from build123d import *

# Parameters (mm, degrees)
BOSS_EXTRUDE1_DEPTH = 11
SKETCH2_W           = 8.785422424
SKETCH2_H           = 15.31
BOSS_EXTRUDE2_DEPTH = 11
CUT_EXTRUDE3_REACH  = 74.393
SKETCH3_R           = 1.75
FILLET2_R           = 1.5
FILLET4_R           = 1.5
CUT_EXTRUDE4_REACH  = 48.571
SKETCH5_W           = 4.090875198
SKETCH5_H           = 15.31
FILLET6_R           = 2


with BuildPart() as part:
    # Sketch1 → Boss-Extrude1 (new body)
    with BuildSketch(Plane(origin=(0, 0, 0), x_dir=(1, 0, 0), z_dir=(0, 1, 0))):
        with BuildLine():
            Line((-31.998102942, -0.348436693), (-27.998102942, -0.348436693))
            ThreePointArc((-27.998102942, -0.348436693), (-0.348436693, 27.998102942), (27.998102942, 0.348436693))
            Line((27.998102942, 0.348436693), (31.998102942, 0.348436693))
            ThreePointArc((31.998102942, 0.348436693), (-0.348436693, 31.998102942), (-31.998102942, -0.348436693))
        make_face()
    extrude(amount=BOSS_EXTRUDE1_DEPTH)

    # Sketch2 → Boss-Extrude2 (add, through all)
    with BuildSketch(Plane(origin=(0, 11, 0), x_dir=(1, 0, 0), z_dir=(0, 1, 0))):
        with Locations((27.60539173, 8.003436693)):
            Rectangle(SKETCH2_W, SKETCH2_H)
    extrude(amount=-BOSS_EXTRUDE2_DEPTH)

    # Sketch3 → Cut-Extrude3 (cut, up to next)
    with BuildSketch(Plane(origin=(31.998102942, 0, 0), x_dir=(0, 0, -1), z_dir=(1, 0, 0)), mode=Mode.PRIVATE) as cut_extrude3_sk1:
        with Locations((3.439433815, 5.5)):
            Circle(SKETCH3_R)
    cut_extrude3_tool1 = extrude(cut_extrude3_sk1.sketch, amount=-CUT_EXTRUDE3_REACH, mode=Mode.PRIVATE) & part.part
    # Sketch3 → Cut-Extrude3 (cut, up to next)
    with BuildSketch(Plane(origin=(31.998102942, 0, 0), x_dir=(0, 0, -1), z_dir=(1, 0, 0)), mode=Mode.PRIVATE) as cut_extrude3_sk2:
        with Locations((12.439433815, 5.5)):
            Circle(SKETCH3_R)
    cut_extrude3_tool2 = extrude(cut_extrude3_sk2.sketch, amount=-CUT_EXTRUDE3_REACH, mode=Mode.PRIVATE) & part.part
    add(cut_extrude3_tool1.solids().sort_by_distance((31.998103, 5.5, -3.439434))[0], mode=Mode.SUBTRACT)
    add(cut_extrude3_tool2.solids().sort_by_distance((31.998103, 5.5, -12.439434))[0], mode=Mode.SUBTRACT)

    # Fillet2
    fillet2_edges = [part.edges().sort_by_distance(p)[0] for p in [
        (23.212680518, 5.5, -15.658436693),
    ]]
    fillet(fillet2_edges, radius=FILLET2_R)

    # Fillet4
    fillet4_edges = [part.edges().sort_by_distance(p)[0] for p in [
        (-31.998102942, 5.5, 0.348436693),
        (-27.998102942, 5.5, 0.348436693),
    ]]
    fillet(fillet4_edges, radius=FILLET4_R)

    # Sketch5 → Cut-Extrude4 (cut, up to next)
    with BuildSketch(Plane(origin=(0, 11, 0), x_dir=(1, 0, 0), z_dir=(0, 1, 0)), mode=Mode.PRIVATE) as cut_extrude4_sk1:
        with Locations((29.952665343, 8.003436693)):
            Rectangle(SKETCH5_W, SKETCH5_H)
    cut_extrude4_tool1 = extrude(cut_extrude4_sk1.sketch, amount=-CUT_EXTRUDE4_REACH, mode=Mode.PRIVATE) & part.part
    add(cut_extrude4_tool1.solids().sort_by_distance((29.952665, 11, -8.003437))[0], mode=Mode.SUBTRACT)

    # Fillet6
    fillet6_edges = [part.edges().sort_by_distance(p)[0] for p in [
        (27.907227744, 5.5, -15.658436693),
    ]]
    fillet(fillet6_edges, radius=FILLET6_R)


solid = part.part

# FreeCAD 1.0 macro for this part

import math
import FreeCAD as App
import Part
import Sketcher


def edges_at(feature, points):
    """Names of the edges that pass closest to the given points."""
    edges = feature.Shape.Edges
    near = lambda p: min(range(len(edges)), key=lambda i: edges[i].distToShape(Part.Vertex(*p))[0])
    return sorted({f"Edge{near(p) + 1}" for p in points})


def add_polygon(sketch, points):
    """Adds a closed chain of lines whose ends are joined by coincident constraints."""
    first, n = sketch.GeometryCount, len(points)
    for a, b in zip(points, points[1:] + points[:1]):
        sketch.addGeometry(Part.LineSegment(App.Vector(*a, 0), App.Vector(*b, 0)), False)
    for i in range(n):
        sketch.addConstraint(Sketcher.Constraint("Coincident", first + i, 2, first + (i + 1) % n, 1))

doc = App.newDocument("Part")
params = doc.addObject("Spreadsheet::Sheet", "Params")
for row, (alias, value) in enumerate([
    ("sketch1_radius", "32 mm"),
    ("sketch1_width", "4 mm"),
    ("pad1_length", "11 mm"),
    ("sketch2_height", "15.31 mm"),
    ("sketch3_diameter", "3.5 mm"),
    ("sketch4_diameter", "3.5 mm"),
    ("fillet_radius", "1.5 mm"),
    ("fillet2_radius", "1.5 mm"),
    ("sketch5_height", "15.31 mm"),
    ("fillet3_radius", "2 mm"),
], start=1):
    params.set(f"A{row}", alias)
    params.set(f"B{row}", "=" + value)
    params.setAlias(f"B{row}", alias)

body = doc.addObject("PartDesign::Body", "Body")

sketch1 = body.newObject("Sketcher::SketchObject", "Sketch")
sketch1.AttachmentSupport = (doc.getObject("XZ_Plane"), [""])
sketch1.MapMode = "FlatFace"
sketch1.addGeometry([
    Part.LineSegment(App.Vector(-32, 0.3, 0), App.Vector(-28, 0.3, 0)),
    Part.ArcOfCircle(Part.Circle(App.Vector(0, 0, 0), App.Vector(0, 0, 1), 28), math.radians(179), math.radians(359)),
    Part.LineSegment(App.Vector(28, -0.3, 0), App.Vector(32, -0.3, 0)),
    Part.ArcOfCircle(Part.Circle(App.Vector(0, 0, 0), App.Vector(0, 0, 1), 32), math.radians(179), math.radians(359)),
], False)
sketch1.addConstraint([
    Sketcher.Constraint("Coincident", 0, 2, 1, 1),
    Sketcher.Constraint("Coincident", 1, 2, 2, 1),
    Sketcher.Constraint("Coincident", 2, 2, 3, 2),
    Sketcher.Constraint("Coincident", 3, 1, 0, 1),
    Sketcher.Constraint("Horizontal", 0),
    Sketcher.Constraint("Horizontal", 2),
    Sketcher.Constraint("Coincident", 1, 3, -1, 1),
    Sketcher.Constraint("Coincident", 3, 3, -1, 1),
    Sketcher.Constraint("Radius", 3, 32.0),
    Sketcher.Constraint("DistanceX", 0, 1, 0, 2, 4.0),
    Sketcher.Constraint("DistanceX", 0, 2, -1, 1, 27.998103),
    Sketcher.Constraint("DistanceX", -1, 1, 1, 2, 27.998103),
])
sketch1.setExpression("Constraints[8]", "Params.sketch1_radius")
sketch1.setExpression("Constraints[9]", "Params.sketch1_width")
pad1 = body.newObject("PartDesign::Pad", "Pad")
pad1.Profile = sketch1
pad1.setExpression("Length", "Params.pad1_length")
pad1.Reversed = True

sketch2 = body.newObject("Sketcher::SketchObject", "Sketch001")
sketch2.AttachmentSupport = (doc.getObject("XZ_Plane"), [""])
sketch2.MapMode = "FlatFace"
sketch2.AttachmentOffset = App.Placement(App.Vector(0, 0, -11), App.Rotation())
add_polygon(sketch2, [(23, -16), (23, 0), (32, 0), (32, -16)])
sketch2.addConstraint([
    Sketcher.Constraint("Vertical", 0),
    Sketcher.Constraint("Horizontal", 1),
    Sketcher.Constraint("Vertical", 2),
    Sketcher.Constraint("Horizontal", 3),
    Sketcher.Constraint("DistanceY", 0, 1, 0, 2, 15.31),
    Sketcher.Constraint("DistanceX", 1, 1, 1, 2, 8.785422),
    Sketcher.Constraint("DistanceX", -1, 1, 0, 2, 23.212681),
    Sketcher.Constraint("DistanceY", 0, 2, -1, 1, 0.348437),
])
sketch2.setExpression("Constraints[8]", "Params.sketch2_height")
pad2 = body.newObject("PartDesign::Pad", "Pad001")
pad2.Profile = sketch2
pad2.Type = "UpToLast"

sketch3 = body.newObject("Sketcher::SketchObject", "Sketch002")
sketch3.AttachmentSupport = (doc.getObject("YZ_Plane"), [""])
sketch3.MapMode = "FlatFace"
sketch3.AttachmentOffset = App.Placement(App.Vector(0, 0, 31.998103), App.Rotation())
sketch3.addGeometry(Part.Circle(App.Vector(5.5, -3.4, 0), App.Vector(0, 0, 1), 1.8), False)
sketch3.addConstraint([
    Sketcher.Constraint("Diameter", 0, 3.5),
    Sketcher.Constraint("DistanceX", -1, 1, 0, 3, 5.5),
    Sketcher.Constraint("DistanceY", 0, 3, -1, 1, 3.439434),
])
sketch3.setExpression("Constraints[0]", "Params.sketch3_diameter")
pocket1 = body.newObject("PartDesign::Pocket", "Pocket")
pocket1.Profile = sketch3
pocket1.Type = "UpToFirst"

sketch4 = body.newObject("Sketcher::SketchObject", "Sketch003")
sketch4.AttachmentSupport = (doc.getObject("YZ_Plane"), [""])
sketch4.MapMode = "FlatFace"
sketch4.AttachmentOffset = App.Placement(App.Vector(0, 0, 31.998103), App.Rotation())
sketch4.addGeometry(Part.Circle(App.Vector(5.5, -12.4, 0), App.Vector(0, 0, 1), 1.8), False)
sketch4.addConstraint([
    Sketcher.Constraint("Diameter", 0, 3.5),
    Sketcher.Constraint("DistanceX", -1, 1, 0, 3, 5.5),
    Sketcher.Constraint("DistanceY", 0, 3, -1, 1, 12.439434),
])
sketch4.setExpression("Constraints[0]", "Params.sketch4_diameter")
pocket2 = body.newObject("PartDesign::Pocket", "Pocket001")
pocket2.Profile = sketch4
pocket2.Type = "UpToFirst"
doc.recompute()

fillet = body.newObject("PartDesign::Fillet", "Fillet")
fillet.Base = (pocket2, edges_at(pocket2, [(23.213, 5.5, -15.658)]))
fillet.setExpression("Radius", "Params.fillet_radius")
doc.recompute()

fillet2 = body.newObject("PartDesign::Fillet", "Fillet001")
fillet2.Base = (fillet, edges_at(fillet, [(-31.998, 5.5, 0.348), (-27.998, 5.5, 0.348)]))
fillet2.setExpression("Radius", "Params.fillet2_radius")

sketch5 = body.newObject("Sketcher::SketchObject", "Sketch004")
sketch5.AttachmentSupport = (doc.getObject("XZ_Plane"), [""])
sketch5.MapMode = "FlatFace"
sketch5.AttachmentOffset = App.Placement(App.Vector(0, 0, -11), App.Rotation())
add_polygon(sketch5, [(27.9, -15.7), (27.9, -0.3), (32, -0.3), (32, -15.7)])
sketch5.addConstraint([
    Sketcher.Constraint("Vertical", 0),
    Sketcher.Constraint("Horizontal", 1),
    Sketcher.Constraint("Vertical", 2),
    Sketcher.Constraint("Horizontal", 3),
    Sketcher.Constraint("DistanceY", 0, 1, 0, 2, 15.31),
    Sketcher.Constraint("DistanceX", 1, 1, 1, 2, 4.090875),
    Sketcher.Constraint("DistanceX", -1, 1, 0, 2, 27.907228),
    Sketcher.Constraint("DistanceY", 0, 2, -1, 1, 0.348437),
])
sketch5.setExpression("Constraints[8]", "Params.sketch5_height")
pocket3 = body.newObject("PartDesign::Pocket", "Pocket002")
pocket3.Profile = sketch5
pocket3.Type = "UpToFirst"
pocket3.Reversed = True
doc.recompute()

fillet3 = body.newObject("PartDesign::Fillet", "Fillet002")
fillet3.Base = (pocket3, edges_at(pocket3, [(27.907, 5.5, -15.658)]))
fillet3.setExpression("Radius", "Params.fillet3_radius")

doc.recompute()
